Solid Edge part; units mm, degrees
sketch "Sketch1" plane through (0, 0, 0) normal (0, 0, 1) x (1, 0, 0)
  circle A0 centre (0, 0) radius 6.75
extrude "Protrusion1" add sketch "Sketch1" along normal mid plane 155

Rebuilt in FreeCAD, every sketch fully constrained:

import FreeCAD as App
import Part
import Sketcher
Q = App.Units.Quantity

doc = App.newDocument("Part")
body = doc.addObject("PartDesign::Body", "Body")

sketch1 = body.newObject("Sketcher::SketchObject", "Sketch")
sketch1.AttachmentSupport = (doc.getObject("XY_Plane"), [""])
sketch1.MapMode = "FlatFace"
sketch1.addGeometry(Part.Circle(App.Vector(0, 0, 0), App.Vector(0, 0, 1), 6.75), False)
sketch1.addConstraint([
    Sketcher.Constraint("Coincident", 0, 3, -1, 1),
    Sketcher.Constraint("Diameter", 0, Q("13.5 mm")),
])
pad1 = body.newObject("PartDesign::Pad", "Pad")
pad1.Profile = sketch1
pad1.Length = 155
pad1.Midplane = True

doc.recompute()
